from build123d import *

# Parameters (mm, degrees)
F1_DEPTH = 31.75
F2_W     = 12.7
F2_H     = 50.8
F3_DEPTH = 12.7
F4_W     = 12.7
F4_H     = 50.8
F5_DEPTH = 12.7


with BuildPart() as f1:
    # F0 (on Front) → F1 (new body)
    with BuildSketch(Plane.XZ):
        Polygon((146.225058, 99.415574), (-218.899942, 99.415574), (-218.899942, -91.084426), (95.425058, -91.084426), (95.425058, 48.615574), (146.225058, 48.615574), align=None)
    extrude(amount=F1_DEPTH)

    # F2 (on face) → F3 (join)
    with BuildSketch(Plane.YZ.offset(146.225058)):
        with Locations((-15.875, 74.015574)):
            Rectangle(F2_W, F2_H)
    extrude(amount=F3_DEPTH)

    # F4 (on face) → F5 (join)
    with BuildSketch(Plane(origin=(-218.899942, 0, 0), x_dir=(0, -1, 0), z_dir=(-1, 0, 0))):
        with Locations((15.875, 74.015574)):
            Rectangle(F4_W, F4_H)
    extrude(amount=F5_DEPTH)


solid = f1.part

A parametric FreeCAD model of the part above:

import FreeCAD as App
import Part
import Sketcher
from FreeCAD import Vector
Q = App.Units.Quantity


def add_polygon(sketch, points):
    """Adds a closed chain of lines whose ends are joined by coincident constraints."""
    first, n = sketch.GeometryCount, len(points)
    for a, b in zip(points, points[1:] + points[:1]):
        sketch.addGeometry(Part.LineSegment(App.Vector(*a, 0), App.Vector(*b, 0)), False)
    for i in range(n):
        sketch.addConstraint(Sketcher.Constraint("Coincident", first + i, 2, first + (i + 1) % n, 1))

doc = App.newDocument("Part")
body = doc.addObject("PartDesign::Body", "Body")

# Sketch on XZ plane
sketch1 = doc.addObject("Sketcher::SketchObject", "Sketch")
body.addObject(sketch1)
sketch1.AttachmentSupport = (doc.XZ_Plane, [""])
sketch1.MapMode = "FlatFace"
add_polygon(sketch1, [(146, 99), (-219, 99), (-219, -91), (95, -91), (95, 49), (146, 49)])  # lines 0-5
sketch1.addConstraint([
    Sketcher.Constraint("Horizontal", 0),
    Sketcher.Constraint("Vertical", 1),
    Sketcher.Constraint("Horizontal", 2),
    Sketcher.Constraint("Vertical", 3),
    Sketcher.Constraint("Horizontal", 4),
    Sketcher.Constraint("Vertical", 5),
    Sketcher.Constraint("Equal", 4, 5),
    Sketcher.Constraint("DistanceX", 4, 1, 4, 2, Q("2 in")),
    Sketcher.Constraint("DistanceY", 1, 2, 1, 1, Q("7.5 in")),
    Sketcher.Constraint("DistanceX", 0, 2, 0, 1, Q("14.375 in")),
    Sketcher.Constraint("DistanceX", -1, 1, 2, 2, Q("95.425058 mm")),
    Sketcher.Constraint("DistanceY", -1, 1, 0, 2, Q("99.415574 mm")),
])
pad1 = doc.addObject("PartDesign::Pad", "Pad")
body.addObject(pad1)
pad1.Profile = sketch1
pad1.Length = Q("1.25 in")

# Sketch on YZ plane
sketch2 = doc.addObject("Sketcher::SketchObject", "Sketch001")
body.addObject(sketch2)
sketch2.AttachmentSupport = (doc.YZ_Plane, [""])
sketch2.MapMode = "FlatFace"
sketch2.AttachmentOffset = App.Placement(Vector(0, 0, 146.225058), App.Rotation())
add_polygon(sketch2, [(-22, 99), (-22, 49), (-10, 49), (-10, 99)])  # lines 0-3
sketch2.addConstraint([
    Sketcher.Constraint("Vertical", 0),
    Sketcher.Constraint("Horizontal", 1),
    Sketcher.Constraint("Vertical", 2),
    Sketcher.Constraint("Horizontal", 3),
    Sketcher.Constraint("DistanceY", 0, 2, 0, 1, Q("2 in")),
    Sketcher.Constraint("DistanceX", 1, 1, 1, 2, Q("0.5 in")),
    Sketcher.Constraint("DistanceX", 0, 2, -1, 1, Q("0.875 in")),
    Sketcher.Constraint("DistanceY", -1, 1, 0, 2, Q("48.615574 mm")),
])
pad2 = doc.addObject("PartDesign::Pad", "Pad001")
body.addObject(pad2)
pad2.Profile = sketch2
pad2.Length = Q("0.5 in")

# Sketch on YZ plane
sketch3 = doc.addObject("Sketcher::SketchObject", "Sketch002")
body.addObject(sketch3)
sketch3.AttachmentSupport = (doc.YZ_Plane, [""])
sketch3.MapMode = "FlatFace"
sketch3.AttachmentOffset = App.Placement(Vector(0, 0, -218.899942), App.Rotation())
add_polygon(sketch3, [(-10, 99), (-10, 49), (-22, 49), (-22, 99)])  # lines 0-3
sketch3.addConstraint([
    Sketcher.Constraint("Vertical", 0),
    Sketcher.Constraint("Horizontal", 1),
    Sketcher.Constraint("Vertical", 2),
    Sketcher.Constraint("Horizontal", 3),
    Sketcher.Constraint("DistanceY", 0, 2, 0, 1, Q("2 in")),
    Sketcher.Constraint("DistanceX", 1, 2, 1, 1, Q("0.5 in")),
    Sketcher.Constraint("DistanceX", 0, 2, -1, 1, Q("0.375 in")),
    Sketcher.Constraint("DistanceY", -1, 1, 0, 2, Q("48.615574 mm")),
])
pad3 = doc.addObject("PartDesign::Pad", "Pad002")
body.addObject(pad3)
pad3.Profile = sketch3
pad3.Length = Q("0.5 in")
pad3.Reversed = True

doc.recompute()
